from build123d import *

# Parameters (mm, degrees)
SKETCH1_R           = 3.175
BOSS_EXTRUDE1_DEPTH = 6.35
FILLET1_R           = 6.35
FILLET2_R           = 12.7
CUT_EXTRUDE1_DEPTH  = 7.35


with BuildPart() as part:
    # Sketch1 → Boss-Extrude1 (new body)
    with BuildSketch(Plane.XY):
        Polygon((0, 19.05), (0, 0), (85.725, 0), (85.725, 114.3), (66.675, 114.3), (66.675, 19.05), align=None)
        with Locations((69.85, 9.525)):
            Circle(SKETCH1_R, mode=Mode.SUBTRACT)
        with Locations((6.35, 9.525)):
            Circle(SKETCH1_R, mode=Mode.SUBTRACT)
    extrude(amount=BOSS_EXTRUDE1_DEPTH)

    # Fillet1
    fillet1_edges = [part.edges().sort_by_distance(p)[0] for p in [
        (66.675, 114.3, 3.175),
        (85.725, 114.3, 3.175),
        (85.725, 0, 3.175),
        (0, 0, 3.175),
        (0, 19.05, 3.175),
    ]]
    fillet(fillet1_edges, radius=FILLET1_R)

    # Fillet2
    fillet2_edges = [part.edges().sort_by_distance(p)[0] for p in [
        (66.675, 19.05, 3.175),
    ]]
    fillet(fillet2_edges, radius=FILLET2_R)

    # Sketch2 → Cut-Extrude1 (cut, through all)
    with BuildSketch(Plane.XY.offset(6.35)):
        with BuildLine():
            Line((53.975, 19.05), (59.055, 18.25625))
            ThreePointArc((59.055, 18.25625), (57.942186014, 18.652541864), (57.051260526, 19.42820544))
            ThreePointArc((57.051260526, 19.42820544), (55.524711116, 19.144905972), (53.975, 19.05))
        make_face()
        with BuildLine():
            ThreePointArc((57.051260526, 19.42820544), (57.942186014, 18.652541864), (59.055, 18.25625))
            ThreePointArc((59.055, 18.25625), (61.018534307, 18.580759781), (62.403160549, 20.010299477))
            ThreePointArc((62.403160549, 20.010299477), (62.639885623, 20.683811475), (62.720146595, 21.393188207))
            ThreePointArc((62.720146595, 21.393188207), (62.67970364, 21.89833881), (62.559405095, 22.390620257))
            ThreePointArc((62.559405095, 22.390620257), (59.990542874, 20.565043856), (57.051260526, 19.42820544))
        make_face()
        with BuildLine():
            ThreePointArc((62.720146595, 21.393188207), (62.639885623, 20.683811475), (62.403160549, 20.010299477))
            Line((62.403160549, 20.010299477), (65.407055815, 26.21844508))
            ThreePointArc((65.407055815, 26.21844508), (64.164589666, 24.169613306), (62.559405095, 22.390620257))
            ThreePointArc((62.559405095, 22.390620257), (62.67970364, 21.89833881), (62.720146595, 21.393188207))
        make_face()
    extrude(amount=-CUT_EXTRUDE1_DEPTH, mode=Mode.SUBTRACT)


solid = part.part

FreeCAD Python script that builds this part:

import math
import FreeCAD as App
import Part
import Sketcher
from FreeCAD import Vector
Q = App.Units.Quantity


def edges_at(feature, points):
    """Names of the edges that pass closest to the given points."""
    edges = feature.Shape.Edges
    near = lambda p: min(range(len(edges)), key=lambda i: edges[i].distToShape(Part.Vertex(*p))[0])
    return sorted({f"Edge{near(p) + 1}" for p in points})


def add_polygon(sketch, points):
    """Adds a closed chain of lines whose ends are joined by coincident constraints."""
    first, n = sketch.GeometryCount, len(points)
    for a, b in zip(points, points[1:] + points[:1]):
        sketch.addGeometry(Part.LineSegment(App.Vector(*a, 0), App.Vector(*b, 0)), False)
    for i in range(n):
        sketch.addConstraint(Sketcher.Constraint("Coincident", first + i, 2, first + (i + 1) % n, 1))

doc = App.newDocument("Part")
body = doc.addObject("PartDesign::Body", "Body")

sketch1 = doc.addObject("Sketcher::SketchObject", "Sketch")
body.addObject(sketch1)
sketch1.AttachmentSupport = (doc.XY_Plane, [""])
sketch1.MapMode = "FlatFace"
add_polygon(sketch1, [(0, 19.1), (0, 0), (85.7, 0), (85.7, 114.3), (66.7, 114.3), (66.7, 19.1)])
sketch1.addGeometry(Part.Circle(Vector(6.3, 9.5, 0), Vector(0, 0, 1), 3.2), False)
sketch1.addGeometry(Part.Circle(Vector(69.8, 9.5, 0), Vector(0, 0, 1), 3.2), False)
sketch1.addConstraint(Sketcher.Constraint("Vertical", 0))
sketch1.addConstraint(Sketcher.Constraint("Horizontal", 1))
sketch1.addConstraint(Sketcher.Constraint("Vertical", 2))
sketch1.addConstraint(Sketcher.Constraint("Horizontal", 3))
sketch1.addConstraint(Sketcher.Constraint("Vertical", 4))
sketch1.addConstraint(Sketcher.Constraint("Horizontal", 5))
sketch1.addConstraint(Sketcher.Constraint("Coincident", 0, 2, -1, 1))
sketch1.addConstraint(Sketcher.Constraint("Equal", 6, 7))
sketch1.addConstraint(Sketcher.Constraint("Horizontal", 6, 3, 7, 3))
sketch1.addConstraint(Sketcher.Constraint("Equal", 3, 0))
sketch1.addConstraint(Sketcher.Constraint("Diameter", 6, Q("0.25 in")))
sketch1.addConstraint(Sketcher.Constraint("DistanceY", 2, 1, 2, 2, Q("4.5 in")))
sketch1.addConstraint(Sketcher.Constraint("DistanceX", 3, 2, 3, 1, Q("0.75 in")))
sketch1.addConstraint(Sketcher.Constraint("DistanceX", 6, 3, 7, 3, Q("2.5 in")))
sketch1.addConstraint(Sketcher.Constraint("DistanceX", 1, 1, 1, 2, Q("3.375 in")))
sketch1.addConstraint(Sketcher.Constraint("DistanceX", -1, 1, 6, 3, Q("0.25 in")))
sketch1.addConstraint(Sketcher.Constraint("DistanceY", -1, 1, 6, 3, Q("0.375 in")))
pad1 = doc.addObject("PartDesign::Pad", "Pad")
body.addObject(pad1)
pad1.Profile = sketch1
pad1.Length = Q("0.25 in")
doc.recompute()

fillet = doc.addObject("PartDesign::Fillet", "Fillet")
body.addObject(fillet)
fillet.Base = (pad1, edges_at(pad1, [
    (66.675, 114.3, 3.175),
    (85.725, 114.3, 3.175),
    (85.725, 0, 3.175),
    (0, 0, 3.175),
    (0, 19.05, 3.175),
]))
fillet.Radius = Q("0.25 in")
doc.recompute()

fillet2 = doc.addObject("PartDesign::Fillet", "Fillet001")
body.addObject(fillet2)
fillet2.Base = (fillet, edges_at(fillet, [(66.675, 19.05, 3.175)]))
fillet2.Radius = Q("0.5 in")

sketch2 = doc.addObject("Sketcher::SketchObject", "Sketch001")
body.addObject(sketch2)
sketch2.AttachmentSupport = (doc.XY_Plane, [""])
sketch2.MapMode = "FlatFace"
sketch2.AttachmentOffset = App.Placement(Vector(0, 0, 0.25 * 25.4), App.Rotation())
sketch2.addGeometry(Part.LineSegment(Vector(54, 19.1, 0), Vector(59.1, 18.3, 0)), False)
sketch2.addGeometry(Part.ArcOfCircle(Part.Circle(Vector(59.5, 21.4, 0), Vector(0, 0, 1), 3.2), math.radians(-99), math.radians(-26)), False)
sketch2.addGeometry(Part.LineSegment(Vector(62.4, 20, 0), Vector(65.4, 26.2, 0)), False)
sketch2.addGeometry(Part.ArcOfCircle(Part.Circle(Vector(54, 31.8, 0), Vector(0, 0, 1), 12.7), math.radians(-47), math.radians(-26)), False)
sketch2.addGeometry(Part.ArcOfCircle(Part.Circle(Vector(54, 31.7, 0), Vector(0, 0, 1), 12.7), math.radians(-76), math.radians(-47)), False)
sketch2.addGeometry(Part.ArcOfCircle(Part.Circle(Vector(54, 31.8, 0), Vector(0, 0, 1), 12.7), math.radians(-90), math.radians(-75.98)), False)
sketch2.addConstraint(Sketcher.Constraint("Tangent", 0, 2, 1, 1))
sketch2.addConstraint(Sketcher.Constraint("Tangent", 1, 2, 2, 1))
sketch2.addConstraint(Sketcher.Constraint("Tangent", 2, 2, 3, 2))
sketch2.addConstraint(Sketcher.Constraint("Tangent", 3, 1, 4, 2))
sketch2.addConstraint(Sketcher.Constraint("Tangent", 4, 1, 5, 2))
sketch2.addConstraint(Sketcher.Constraint("Coincident", 5, 1, 0, 1))
sketch2.addConstraint(Sketcher.Constraint("Coincident", 5, 3, 3, 3))
sketch2.addConstraint(Sketcher.Constraint("Vertical", 4, 3, 5, 1))
sketch2.addConstraint(Sketcher.Constraint("Radius", 3, Q("0.5 in")))
sketch2.addConstraint(Sketcher.Constraint("Radius", 1, Q("0.125 in")))
sketch2.addConstraint(Sketcher.Constraint("DistanceX", 4, 3, 0, 2, Q("0.2 in")))
sketch2.addConstraint(Sketcher.Constraint("DistanceY", -1, 1, 3, 3, Q("1.25 in")))
sketch2.addConstraint(Sketcher.Constraint("DistanceX", -1, 1, 3, 3, Q("2.125 in")))
sketch2.addConstraint(Sketcher.Constraint("DistanceY", -1, 1, 0, 2, Q("0.71875 in")))
sketch2.addConstraint(Sketcher.Constraint("DistanceX", 4, 1, 1, 2, 5.3519))
sketch2.addConstraint(Sketcher.Constraint("DistanceY", -1, 1, 3, 1, 22.39062))
pocket1 = doc.addObject("PartDesign::Pocket", "Pocket")
body.addObject(pocket1)
pocket1.Profile = sketch2
pocket1.Type = "ThroughAll"

doc.recompute()
